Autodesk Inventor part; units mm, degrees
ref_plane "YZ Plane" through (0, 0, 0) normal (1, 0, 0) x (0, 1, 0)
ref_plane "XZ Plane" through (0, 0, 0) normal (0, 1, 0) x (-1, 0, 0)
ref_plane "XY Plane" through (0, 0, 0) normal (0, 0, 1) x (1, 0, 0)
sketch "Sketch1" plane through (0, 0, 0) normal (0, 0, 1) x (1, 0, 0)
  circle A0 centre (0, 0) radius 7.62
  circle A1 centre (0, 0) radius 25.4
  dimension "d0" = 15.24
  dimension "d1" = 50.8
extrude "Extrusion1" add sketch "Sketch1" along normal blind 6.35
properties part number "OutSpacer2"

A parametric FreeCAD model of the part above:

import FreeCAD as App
import Part
import Sketcher
Q = App.Units.Quantity

doc = App.newDocument("Part")
body = doc.addObject("PartDesign::Body", "Body")

sketch1 = body.newObject("Sketcher::SketchObject", "Sketch")
sketch1.AttachmentSupport = (doc.getObject("XY_Plane"), [""])
sketch1.MapMode = "FlatFace"
sketch1.addGeometry(Part.Circle(App.Vector(0, 0, 0), App.Vector(0, 0, 1), 25), False)
sketch1.addGeometry(Part.Circle(App.Vector(0, 0, 0), App.Vector(0, 0, 1), 8), False)
sketch1.addConstraint(Sketcher.Constraint("Coincident", 0, 3, -1, 1))
sketch1.addConstraint(Sketcher.Constraint("Coincident", 1, 3, -1, 1))
sketch1.addConstraint(Sketcher.Constraint("Diameter", 0, Q("2 in")))
sketch1.addConstraint(Sketcher.Constraint("Diameter", 1, Q("0.6 in")))
pad1 = body.newObject("PartDesign::Pad", "Pad")
pad1.Profile = sketch1
pad1.Length = Q("0.25 in")

doc.recompute()
